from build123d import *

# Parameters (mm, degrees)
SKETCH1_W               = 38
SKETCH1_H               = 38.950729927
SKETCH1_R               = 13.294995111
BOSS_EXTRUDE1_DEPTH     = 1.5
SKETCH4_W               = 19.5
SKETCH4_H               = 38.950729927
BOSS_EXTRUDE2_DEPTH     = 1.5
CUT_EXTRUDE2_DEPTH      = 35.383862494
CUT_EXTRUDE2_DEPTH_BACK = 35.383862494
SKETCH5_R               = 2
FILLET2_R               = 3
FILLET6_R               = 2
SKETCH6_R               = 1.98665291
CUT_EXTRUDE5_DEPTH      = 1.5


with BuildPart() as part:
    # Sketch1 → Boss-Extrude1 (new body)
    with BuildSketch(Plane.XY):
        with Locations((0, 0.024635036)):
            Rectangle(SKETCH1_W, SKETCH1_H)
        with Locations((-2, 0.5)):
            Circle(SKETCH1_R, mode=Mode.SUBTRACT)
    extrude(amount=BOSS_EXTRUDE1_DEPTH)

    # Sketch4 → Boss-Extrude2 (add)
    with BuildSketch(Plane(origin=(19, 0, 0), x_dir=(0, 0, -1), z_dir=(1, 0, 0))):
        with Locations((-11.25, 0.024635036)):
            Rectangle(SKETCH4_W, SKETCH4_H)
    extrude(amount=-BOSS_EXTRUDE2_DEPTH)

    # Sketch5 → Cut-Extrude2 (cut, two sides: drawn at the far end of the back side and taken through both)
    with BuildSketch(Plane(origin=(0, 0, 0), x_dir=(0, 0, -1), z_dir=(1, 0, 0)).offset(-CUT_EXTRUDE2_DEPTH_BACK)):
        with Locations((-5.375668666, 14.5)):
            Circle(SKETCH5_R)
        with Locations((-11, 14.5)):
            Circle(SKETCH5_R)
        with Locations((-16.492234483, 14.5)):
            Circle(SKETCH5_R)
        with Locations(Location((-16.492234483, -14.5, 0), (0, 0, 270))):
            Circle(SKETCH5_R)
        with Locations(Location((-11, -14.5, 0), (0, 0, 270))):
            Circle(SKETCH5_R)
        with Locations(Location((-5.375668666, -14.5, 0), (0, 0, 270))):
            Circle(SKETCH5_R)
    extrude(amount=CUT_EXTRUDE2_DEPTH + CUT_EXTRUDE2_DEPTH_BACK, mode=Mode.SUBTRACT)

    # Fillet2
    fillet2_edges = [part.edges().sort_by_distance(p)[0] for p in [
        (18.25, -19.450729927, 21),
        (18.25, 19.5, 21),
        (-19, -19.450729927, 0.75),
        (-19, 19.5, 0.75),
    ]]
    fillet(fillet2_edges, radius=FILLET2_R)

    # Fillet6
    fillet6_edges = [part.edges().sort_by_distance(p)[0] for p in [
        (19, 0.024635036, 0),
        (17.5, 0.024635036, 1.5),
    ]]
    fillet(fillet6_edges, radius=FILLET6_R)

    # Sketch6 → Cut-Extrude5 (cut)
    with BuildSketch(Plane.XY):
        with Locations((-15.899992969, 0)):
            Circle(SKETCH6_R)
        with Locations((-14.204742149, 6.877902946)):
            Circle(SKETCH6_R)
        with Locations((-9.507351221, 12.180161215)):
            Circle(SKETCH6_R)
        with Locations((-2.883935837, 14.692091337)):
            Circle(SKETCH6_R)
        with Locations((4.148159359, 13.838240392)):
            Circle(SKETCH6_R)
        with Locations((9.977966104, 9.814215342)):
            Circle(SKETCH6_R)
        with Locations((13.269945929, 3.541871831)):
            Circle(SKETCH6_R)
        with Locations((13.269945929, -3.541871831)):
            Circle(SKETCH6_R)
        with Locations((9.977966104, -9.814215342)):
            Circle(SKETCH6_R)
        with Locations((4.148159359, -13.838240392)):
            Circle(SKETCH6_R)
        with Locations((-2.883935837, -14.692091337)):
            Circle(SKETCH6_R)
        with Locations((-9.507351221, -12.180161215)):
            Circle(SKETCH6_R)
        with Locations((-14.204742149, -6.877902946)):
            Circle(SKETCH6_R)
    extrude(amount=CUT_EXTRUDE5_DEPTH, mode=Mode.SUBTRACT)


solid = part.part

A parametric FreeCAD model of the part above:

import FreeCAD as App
import Part
import Sketcher


def edges_at(feature, points):
    """Names of the edges that pass closest to the given points."""
    edges = feature.Shape.Edges
    near = lambda p: min(range(len(edges)), key=lambda i: edges[i].distToShape(Part.Vertex(*p))[0])
    return sorted({f"Edge{near(p) + 1}" for p in points})


def add_polygon(sketch, points):
    """Adds a closed chain of lines whose ends are joined by coincident constraints."""
    first, n = sketch.GeometryCount, len(points)
    for a, b in zip(points, points[1:] + points[:1]):
        sketch.addGeometry(Part.LineSegment(App.Vector(*a, 0), App.Vector(*b, 0)), False)
    for i in range(n):
        sketch.addConstraint(Sketcher.Constraint("Coincident", first + i, 2, first + (i + 1) % n, 1))

doc = App.newDocument("Part")
body = doc.addObject("PartDesign::Body", "Body")

# Sketch on XY plane
sketch1 = doc.addObject("Sketcher::SketchObject", "Sketch")
body.addObject(sketch1)
sketch1.AttachmentSupport = (doc.XY_Plane, [""])
sketch1.MapMode = "FlatFace"
add_polygon(sketch1, [(-19, 19), (-19, -19), (19, -19), (19, 19)])  # lines 0-3
sketch1.addGeometry(Part.Circle(App.Vector(-2, 0, 0), App.Vector(0, 0, 1), 13), False)  # 4
sketch1.addConstraint([
    Sketcher.Constraint("Vertical", 0),
    Sketcher.Constraint("Horizontal", 1),
    Sketcher.Constraint("Vertical", 2),
    Sketcher.Constraint("Horizontal", 3),
    Sketcher.Constraint("DistanceX", 1, 1, 1, 2, 38.0),
    Sketcher.Constraint("DistanceX", 4, 3, -1, 1, 2.0),
    Sketcher.Constraint("DistanceX", 0, 2, -1, 1, 19.0),
    Sketcher.Constraint("DistanceY", 4, 3, 2, 2, 19.0),
    Sketcher.Constraint("DistanceY", -1, 1, 4, 3, 0.5),
    Sketcher.Constraint("Diameter", 4, 26.58999),
    Sketcher.Constraint("DistanceY", 0, 2, 0, 1, 38.95073),
])
pad1 = doc.addObject("PartDesign::Pad", "Pad")
body.addObject(pad1)
pad1.Profile = sketch1
pad1.Length = 1.5

# Sketch on YZ plane
sketch2 = doc.addObject("Sketcher::SketchObject", "Sketch001")
body.addObject(sketch2)
sketch2.AttachmentSupport = (doc.YZ_Plane, [""])
sketch2.MapMode = "FlatFace"
sketch2.AttachmentOffset = App.Placement(App.Vector(0, 0, 19), App.Rotation())
add_polygon(sketch2, [(19, 21), (-19, 21), (-19, 2), (19, 2)])  # lines 0-3
sketch2.addConstraint([
    Sketcher.Constraint("Horizontal", 0),
    Sketcher.Constraint("Vertical", 1),
    Sketcher.Constraint("Horizontal", 2),
    Sketcher.Constraint("Vertical", 3),
    Sketcher.Constraint("DistanceY", 1, 2, 1, 1, 19.5),
    Sketcher.Constraint("DistanceY", -1, 1, 0, 2, 21.0),
    Sketcher.Constraint("DistanceX", -1, 1, 2, 2, 19.5),
    Sketcher.Constraint("DistanceX", 0, 2, 0, 1, 38.95073),
])
pad2 = doc.addObject("PartDesign::Pad", "Pad001")
body.addObject(pad2)
pad2.Profile = sketch2
pad2.Length = 1.5
pad2.Reversed = True

# Sketch on YZ plane
sketch3 = doc.addObject("Sketcher::SketchObject", "Sketch002")
body.addObject(sketch3)
sketch3.AttachmentSupport = (doc.YZ_Plane, [""])
sketch3.MapMode = "FlatFace"
sketch3.addGeometry([
    Part.Circle(App.Vector(14.5, 5.4, 0), App.Vector(0, 0, 1), 2),  # 0
    Part.Circle(App.Vector(14.5, 11, 0), App.Vector(0, 0, 1), 2),  # 1
    Part.Circle(App.Vector(14.5, 16.5, 0), App.Vector(0, 0, 1), 2),  # 2
    Part.Circle(App.Vector(-14.5, 16.5, 0), App.Vector(0, 0, 1), 2),  # 3
    Part.Circle(App.Vector(-14.5, 11, 0), App.Vector(0, 0, 1), 2),  # 4
    Part.Circle(App.Vector(-14.5, 5.4, 0), App.Vector(0, 0, 1), 2),  # 5
], False)
sketch3.addConstraint([
    Sketcher.Constraint("Equal", 0, 1),
    Sketcher.Constraint("Equal", 1, 2),
    Sketcher.Constraint("Equal", 2, 3),
    Sketcher.Constraint("Equal", 3, 4),
    Sketcher.Constraint("Equal", 4, 5),
    Sketcher.Constraint("Symmetric", 2, 3, 3, 3, -2),
    Sketcher.Constraint("Symmetric", 1, 3, 4, 3, -2),
    Sketcher.Constraint("Symmetric", 0, 3, 5, 3, -2),
    Sketcher.Constraint("Vertical", 0, 3, 1, 3),
    Sketcher.Constraint("Vertical", 1, 3, 2, 3),
    Sketcher.Constraint("Diameter", 0, 4.0),
    Sketcher.Constraint("DistanceY", -1, 1, 1, 3, 11.0),
    Sketcher.Constraint("DistanceX", 3, 3, 2, 3, 29.0),
    Sketcher.Constraint("DistanceY", -1, 1, 0, 3, 5.375669),
    Sketcher.Constraint("DistanceY", -1, 1, 2, 3, 16.492234),
])
pocket1 = doc.addObject("PartDesign::Pocket", "Pocket")
body.addObject(pocket1)
pocket1.Profile = sketch3
pocket1.Type = "ThroughAll"
pocket1.Midplane = True
doc.recompute()

fillet = doc.addObject("PartDesign::Fillet", "Fillet")
body.addObject(fillet)
fillet.Base = (pocket1, edges_at(pocket1, [
    (18.25, -19.451, 21),
    (18.25, 19.5, 21),
    (-19, -19.451, 0.75),
    (-19, 19.5, 0.75),
]))
fillet.Radius = 3
doc.recompute()

fillet2 = doc.addObject("PartDesign::Fillet", "Fillet001")
body.addObject(fillet2)
fillet2.Base = (fillet, edges_at(fillet, [(19, 0.025, 0), (17.5, 0.025, 1.5)]))
fillet2.Radius = 2

# Sketch on XY plane
sketch4 = doc.addObject("Sketcher::SketchObject", "Sketch003")
body.addObject(sketch4)
sketch4.AttachmentSupport = (doc.XY_Plane, [""])
sketch4.MapMode = "FlatFace"
sketch4.addGeometry([
    Part.Circle(App.Vector(-15.9, 0, 0), App.Vector(0, 0, 1), 2),  # 0
    Part.Circle(App.Vector(-14.2, 6.9, 0), App.Vector(0, 0, 1), 2),  # 1
    Part.Circle(App.Vector(-9.5, 12.2, 0), App.Vector(0, 0, 1), 2),  # 2
    Part.Circle(App.Vector(-2.9, 14.7, 0), App.Vector(0, 0, 1), 2),  # 3
    Part.Circle(App.Vector(4.1, 13.8, 0), App.Vector(0, 0, 1), 2),  # 4
    Part.Circle(App.Vector(10, 9.8, 0), App.Vector(0, 0, 1), 2),  # 5
    Part.Circle(App.Vector(13.3, 3.5, 0), App.Vector(0, 0, 1), 2),  # 6
    Part.Circle(App.Vector(13.3, -3.5, 0), App.Vector(0, 0, 1), 2),  # 7
    Part.Circle(App.Vector(10, -9.8, 0), App.Vector(0, 0, 1), 2),  # 8
    Part.Circle(App.Vector(4.1, -13.8, 0), App.Vector(0, 0, 1), 2),  # 9
    Part.Circle(App.Vector(-2.9, -14.7, 0), App.Vector(0, 0, 1), 2),  # 10
    Part.Circle(App.Vector(-9.5, -12.2, 0), App.Vector(0, 0, 1), 2),  # 11
    Part.Circle(App.Vector(-14.2, -6.9, 0), App.Vector(0, 0, 1), 2),  # 12
], False)
sketch4.addConstraint([
    Sketcher.Constraint("Equal", 0, 1),
    Sketcher.Constraint("Equal", 1, 2),
    Sketcher.Constraint("Equal", 2, 3),
    Sketcher.Constraint("Equal", 3, 4),
    Sketcher.Constraint("Equal", 4, 5),
    Sketcher.Constraint("Equal", 5, 6),
    Sketcher.Constraint("Equal", 6, 7),
    Sketcher.Constraint("Equal", 7, 8),
    Sketcher.Constraint("Equal", 8, 9),
    Sketcher.Constraint("Equal", 9, 10),
    Sketcher.Constraint("Equal", 10, 11),
    Sketcher.Constraint("Equal", 11, 12),
    Sketcher.Constraint("Symmetric", 6, 3, 7, 3, -1),
    Sketcher.Constraint("Symmetric", 5, 3, 8, 3, -1),
    Sketcher.Constraint("Symmetric", 4, 3, 9, 3, -1),
    Sketcher.Constraint("Symmetric", 3, 3, 10, 3, -1),
    Sketcher.Constraint("Symmetric", 2, 3, 11, 3, -1),
    Sketcher.Constraint("Symmetric", 1, 3, 12, 3, -1),
    Sketcher.Constraint("PointOnObject", 0, 3, -1),
    Sketcher.Constraint("Diameter", 0, 3.973306),
    Sketcher.Constraint("DistanceX", 1, 3, 4, 3, 18.352902),
    Sketcher.Constraint("DistanceX", 3, 3, 5, 3, 12.861902),
    Sketcher.Constraint("DistanceX", 2, 3, -1, 1, 9.507351),
    Sketcher.Constraint("DistanceY", -1, 1, 2, 3, 12.180161),
    Sketcher.Constraint("DistanceY", -1, 1, 3, 3, 14.692091),
    Sketcher.Constraint("DistanceX", -1, 1, 4, 3, 4.148159),
    Sketcher.Constraint("DistanceY", -1, 1, 4, 3, 13.83824),
    Sketcher.Constraint("DistanceY", -1, 1, 6, 3, 3.541872),
    Sketcher.Constraint("DistanceX", 0, 3, 1, 3, 1.695251),
    Sketcher.Constraint("DistanceY", 1, 3, 2, 3, 5.302258),
    Sketcher.Constraint("DistanceX", 1, 3, 5, 3, 24.182708),
    Sketcher.Constraint("DistanceX", 5, 3, 6, 3, 3.29198),
    Sketcher.Constraint("DistanceY", 8, 3, 5, 3, 19.628431),
])
pocket2 = doc.addObject("PartDesign::Pocket", "Pocket001")
body.addObject(pocket2)
pocket2.Profile = sketch4
pocket2.Length = 1.5
pocket2.Reversed = True

doc.recompute()
